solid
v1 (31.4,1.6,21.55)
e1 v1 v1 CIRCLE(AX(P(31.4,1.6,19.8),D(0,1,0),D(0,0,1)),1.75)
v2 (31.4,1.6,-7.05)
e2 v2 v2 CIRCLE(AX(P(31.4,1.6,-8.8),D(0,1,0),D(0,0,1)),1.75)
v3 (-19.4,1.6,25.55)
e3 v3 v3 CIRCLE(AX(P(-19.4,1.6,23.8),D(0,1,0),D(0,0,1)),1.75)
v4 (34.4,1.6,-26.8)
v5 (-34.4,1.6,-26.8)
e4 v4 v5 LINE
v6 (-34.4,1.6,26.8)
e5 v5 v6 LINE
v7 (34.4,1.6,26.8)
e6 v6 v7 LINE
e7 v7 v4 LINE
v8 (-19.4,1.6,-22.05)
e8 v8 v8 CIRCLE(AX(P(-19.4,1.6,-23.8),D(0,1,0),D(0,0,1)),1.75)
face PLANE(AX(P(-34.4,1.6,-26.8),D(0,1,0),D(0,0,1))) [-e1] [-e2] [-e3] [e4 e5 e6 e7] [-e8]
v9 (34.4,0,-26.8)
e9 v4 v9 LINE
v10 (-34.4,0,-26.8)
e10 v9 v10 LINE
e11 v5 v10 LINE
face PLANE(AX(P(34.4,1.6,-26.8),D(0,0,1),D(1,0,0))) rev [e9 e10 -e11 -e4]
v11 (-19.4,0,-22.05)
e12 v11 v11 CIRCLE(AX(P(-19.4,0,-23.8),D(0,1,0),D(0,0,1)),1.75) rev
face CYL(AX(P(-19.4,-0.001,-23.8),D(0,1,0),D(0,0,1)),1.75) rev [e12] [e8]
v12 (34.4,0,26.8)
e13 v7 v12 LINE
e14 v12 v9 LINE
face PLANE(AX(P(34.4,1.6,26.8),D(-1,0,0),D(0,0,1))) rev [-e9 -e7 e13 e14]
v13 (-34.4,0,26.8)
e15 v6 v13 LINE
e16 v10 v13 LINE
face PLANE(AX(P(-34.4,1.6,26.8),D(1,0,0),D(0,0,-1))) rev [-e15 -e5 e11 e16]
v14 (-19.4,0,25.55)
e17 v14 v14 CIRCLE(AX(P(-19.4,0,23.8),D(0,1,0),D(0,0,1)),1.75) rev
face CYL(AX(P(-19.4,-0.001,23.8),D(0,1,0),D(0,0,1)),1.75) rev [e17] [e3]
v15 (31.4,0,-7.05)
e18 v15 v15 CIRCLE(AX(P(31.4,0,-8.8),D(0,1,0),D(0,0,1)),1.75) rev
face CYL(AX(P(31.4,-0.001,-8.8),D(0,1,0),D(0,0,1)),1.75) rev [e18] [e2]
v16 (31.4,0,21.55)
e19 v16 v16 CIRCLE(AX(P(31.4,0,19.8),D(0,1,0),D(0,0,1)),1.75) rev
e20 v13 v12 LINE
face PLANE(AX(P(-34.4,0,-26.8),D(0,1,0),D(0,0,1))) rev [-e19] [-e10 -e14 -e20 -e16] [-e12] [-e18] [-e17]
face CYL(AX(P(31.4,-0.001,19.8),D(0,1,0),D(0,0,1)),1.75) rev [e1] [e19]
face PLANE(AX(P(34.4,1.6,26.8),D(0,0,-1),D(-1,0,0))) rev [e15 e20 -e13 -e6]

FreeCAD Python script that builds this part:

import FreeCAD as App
import Part
import Sketcher
from FreeCAD import Vector

doc = App.newDocument("Part")
body = doc.addObject("PartDesign::Body", "Body")

# Sketch on XZ plane
sketch1 = body.newObject("Sketcher::SketchObject", "Sketch")
sketch1.AttachmentSupport = (doc.getObject("XZ_Plane"), [""])
sketch1.MapMode = "FlatFace"
sketch1.addGeometry([
    Part.LineSegment(Vector(34.4, 26.8, 0), Vector(34.4, -26.8, 0)),
    Part.LineSegment(Vector(34.4, -26.8, 0), Vector(-34.4, -26.8, 0)),
    Part.LineSegment(Vector(-34.4, -26.8, 0), Vector(-34.4, 26.8, 0)),
    Part.LineSegment(Vector(-34.4, 26.8, 0), Vector(34.4, 26.8, 0)),
], False)
sketch1.addConstraint([
    Sketcher.Constraint("Coincident", 0, 2, 1, 1),
    Sketcher.Constraint("Coincident", 1, 2, 2, 1),
    Sketcher.Constraint("Coincident", 2, 2, 3, 1),
    Sketcher.Constraint("Coincident", 3, 2, 0, 1),
    Sketcher.Constraint("Vertical", 0),
    Sketcher.Constraint("Horizontal", 1),
    Sketcher.Constraint("Vertical", 2),
    Sketcher.Constraint("Horizontal", 3),
    Sketcher.Constraint("Symmetric", 0, 2, 2, 2, -1, 1),
    Sketcher.Constraint("DistanceX", 1, 2, 1, 1, 68.8),
    Sketcher.Constraint("DistanceY", 0, 2, 0, 1, 53.6),
])
pad1 = body.newObject("PartDesign::Pad", "Pad")
pad1.Profile = sketch1
pad1.Length = 1.6
pad1.Reversed = True

# Sketch on XZ plane
sketch2 = body.newObject("Sketcher::SketchObject", "Sketch001")
sketch2.AttachmentSupport = (doc.getObject("XZ_Plane"), [""])
sketch2.MapMode = "FlatFace"
sketch2.AttachmentOffset = App.Placement(Vector(0, 0, -1.6), App.Rotation())
sketch2.addGeometry(Part.Circle(Vector(-19.4, -23.8, 0), Vector(0, 0, 1), 1.75), False)
sketch2.addConstraint([
    Sketcher.Constraint("Diameter", 0, 3.5),
    Sketcher.Constraint("DistanceX", 0, 3, -1, 1, 19.4),
    Sketcher.Constraint("DistanceY", 0, 3, -1, 1, 23.8),
])
pocket1 = body.newObject("PartDesign::Pocket", "Pocket")
pocket1.Profile = sketch2
pocket1.Type = "UpToFirst"
pocket1.Reversed = True

# Sketch on XZ plane
sketch3 = body.newObject("Sketcher::SketchObject", "Sketch002")
sketch3.AttachmentSupport = (doc.getObject("XZ_Plane"), [""])
sketch3.MapMode = "FlatFace"
sketch3.AttachmentOffset = App.Placement(Vector(0, 0, -1.6), App.Rotation())
sketch3.addGeometry(Part.Circle(Vector(-19.4, 23.8, 0), Vector(0, 0, 1), 1.75), False)
sketch3.addConstraint([
    Sketcher.Constraint("Diameter", 0, 3.5),
    Sketcher.Constraint("DistanceX", 0, 3, -1, 1, 19.4),
    Sketcher.Constraint("DistanceY", -1, 1, 0, 3, 23.8),
])
pocket2 = body.newObject("PartDesign::Pocket", "Pocket001")
pocket2.Profile = sketch3
pocket2.Type = "UpToFirst"
pocket2.Reversed = True

# Sketch on XZ plane
sketch4 = body.newObject("Sketcher::SketchObject", "Sketch003")
sketch4.AttachmentSupport = (doc.getObject("XZ_Plane"), [""])
sketch4.MapMode = "FlatFace"
sketch4.AttachmentOffset = App.Placement(Vector(0, 0, -1.6), App.Rotation())
sketch4.addGeometry(Part.Circle(Vector(31.4, 19.8, 0), Vector(0, 0, 1), 1.75), False)
sketch4.addConstraint([
    Sketcher.Constraint("Diameter", 0, 3.5),
    Sketcher.Constraint("DistanceX", -1, 1, 0, 3, 31.4),
    Sketcher.Constraint("DistanceY", -1, 1, 0, 3, 19.8),
])
pocket3 = body.newObject("PartDesign::Pocket", "Pocket002")
pocket3.Profile = sketch4
pocket3.Type = "UpToFirst"
pocket3.Reversed = True

# Sketch on XZ plane
sketch5 = body.newObject("Sketcher::SketchObject", "Sketch004")
sketch5.AttachmentSupport = (doc.getObject("XZ_Plane"), [""])
sketch5.MapMode = "FlatFace"
sketch5.AttachmentOffset = App.Placement(Vector(0, 0, -1.6), App.Rotation())
sketch5.addGeometry(Part.Circle(Vector(31.4, -8.8, 0), Vector(0, 0, 1), 1.75), False)
sketch5.addConstraint([
    Sketcher.Constraint("Diameter", 0, 3.5),
    Sketcher.Constraint("DistanceX", -1, 1, 0, 3, 31.4),
    Sketcher.Constraint("DistanceY", 0, 3, -1, 1, 8.8),
])
pocket4 = body.newObject("PartDesign::Pocket", "Pocket003")
pocket4.Profile = sketch5
pocket4.Type = "UpToFirst"
pocket4.Reversed = True

doc.recompute()
